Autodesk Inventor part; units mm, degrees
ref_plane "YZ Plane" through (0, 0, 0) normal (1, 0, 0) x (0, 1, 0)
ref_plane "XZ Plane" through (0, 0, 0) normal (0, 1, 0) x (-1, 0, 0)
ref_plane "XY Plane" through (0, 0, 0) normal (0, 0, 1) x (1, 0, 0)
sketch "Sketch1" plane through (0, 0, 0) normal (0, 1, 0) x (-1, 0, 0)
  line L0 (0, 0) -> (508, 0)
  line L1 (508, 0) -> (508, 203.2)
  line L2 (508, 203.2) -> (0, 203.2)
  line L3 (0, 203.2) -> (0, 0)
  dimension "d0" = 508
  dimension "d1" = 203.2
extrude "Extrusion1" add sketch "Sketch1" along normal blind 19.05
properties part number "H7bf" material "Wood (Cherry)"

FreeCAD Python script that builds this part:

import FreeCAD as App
import Part
import Sketcher
from FreeCAD import Vector
Q = App.Units.Quantity


def add_polygon(sketch, points):
    """Adds a closed chain of lines whose ends are joined by coincident constraints."""
    first, n = sketch.GeometryCount, len(points)
    for a, b in zip(points, points[1:] + points[:1]):
        sketch.addGeometry(Part.LineSegment(App.Vector(*a, 0), App.Vector(*b, 0)), False)
    for i in range(n):
        sketch.addConstraint(Sketcher.Constraint("Coincident", first + i, 2, first + (i + 1) % n, 1))

doc = App.newDocument("Part")
body = doc.addObject("PartDesign::Body", "Body")

sketch1 = body.newObject("Sketcher::SketchObject", "Sketch")
sketch1.AttachmentSupport = (doc.getObject("XZ_Plane"), [""])
sketch1.MapMode = "FlatFace"
add_polygon(sketch1, [(0, 203), (0, 0), (-508, 0), (-508, 203)])
sketch1.addConstraint([
    Sketcher.Constraint("Vertical", 0),
    Sketcher.Constraint("Horizontal", 1),
    Sketcher.Constraint("Vertical", 2),
    Sketcher.Constraint("Horizontal", 3),
    Sketcher.Constraint("Coincident", 0, 2, -1, 1),
    Sketcher.Constraint("DistanceX", 1, 2, 1, 1, Q("20 in")),
    Sketcher.Constraint("DistanceY", 0, 2, 0, 1, Q("8 in")),
])
pad1 = body.newObject("PartDesign::Pad", "Pad")
pad1.Profile = sketch1
pad1.Length = Q("0.75 in")
pad1.Reversed = True

doc.recompute()
